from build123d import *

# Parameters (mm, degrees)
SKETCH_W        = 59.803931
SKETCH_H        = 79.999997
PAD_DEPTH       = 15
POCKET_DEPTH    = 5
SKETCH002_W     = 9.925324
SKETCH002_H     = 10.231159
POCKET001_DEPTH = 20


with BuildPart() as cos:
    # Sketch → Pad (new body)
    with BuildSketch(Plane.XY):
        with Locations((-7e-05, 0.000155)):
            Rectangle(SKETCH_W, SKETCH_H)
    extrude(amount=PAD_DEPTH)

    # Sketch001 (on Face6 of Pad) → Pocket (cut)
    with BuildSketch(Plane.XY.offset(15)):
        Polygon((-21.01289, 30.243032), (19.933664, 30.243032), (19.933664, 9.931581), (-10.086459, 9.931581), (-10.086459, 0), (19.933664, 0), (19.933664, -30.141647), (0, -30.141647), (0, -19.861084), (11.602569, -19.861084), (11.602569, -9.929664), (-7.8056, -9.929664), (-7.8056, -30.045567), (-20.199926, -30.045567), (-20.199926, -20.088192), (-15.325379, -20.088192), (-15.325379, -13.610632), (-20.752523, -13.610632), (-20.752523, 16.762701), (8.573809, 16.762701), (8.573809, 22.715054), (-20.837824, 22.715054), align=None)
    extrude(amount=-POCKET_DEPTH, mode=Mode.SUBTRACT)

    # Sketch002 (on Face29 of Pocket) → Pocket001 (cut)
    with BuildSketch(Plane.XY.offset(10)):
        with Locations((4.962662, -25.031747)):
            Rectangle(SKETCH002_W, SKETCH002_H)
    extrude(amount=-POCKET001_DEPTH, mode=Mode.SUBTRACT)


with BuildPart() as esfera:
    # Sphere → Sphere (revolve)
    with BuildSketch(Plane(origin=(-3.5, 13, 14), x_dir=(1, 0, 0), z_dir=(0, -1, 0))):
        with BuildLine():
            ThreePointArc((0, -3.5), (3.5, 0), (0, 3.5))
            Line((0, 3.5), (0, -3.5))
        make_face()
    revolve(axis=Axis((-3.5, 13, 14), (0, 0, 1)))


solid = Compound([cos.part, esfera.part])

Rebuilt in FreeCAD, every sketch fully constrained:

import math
import FreeCAD as App
import Part
import Sketcher


def add_polygon(sketch, points):
    """Adds a closed chain of lines whose ends are joined by coincident constraints."""
    first, n = sketch.GeometryCount, len(points)
    for a, b in zip(points, points[1:] + points[:1]):
        sketch.addGeometry(Part.LineSegment(App.Vector(*a, 0), App.Vector(*b, 0)), False)
    for i in range(n):
        sketch.addConstraint(Sketcher.Constraint("Coincident", first + i, 2, first + (i + 1) % n, 1))

doc = App.newDocument("Part")
body = doc.addObject("PartDesign::Body", "Body")

# Sketch on XY plane
sketch1 = doc.addObject("Sketcher::SketchObject", "Sketch")
body.addObject(sketch1)
sketch1.AttachmentSupport = (doc.XY_Plane, [""])
sketch1.MapMode = "FlatFace"
add_polygon(sketch1, [(-30, 40), (-30, -40), (30, -40), (30, 40)])  # lines 0-3
sketch1.addConstraint(Sketcher.Constraint("Vertical", 0))
sketch1.addConstraint(Sketcher.Constraint("Horizontal", 1))
sketch1.addConstraint(Sketcher.Constraint("Vertical", 2))
sketch1.addConstraint(Sketcher.Constraint("Horizontal", 3))
sketch1.addConstraint(Sketcher.Constraint("DistanceX", 1, 1, 1, 2, 59.803931))
sketch1.addConstraint(Sketcher.Constraint("DistanceY", 0, 2, 0, 1, 79.999997))
sketch1.addConstraint(Sketcher.Constraint("DistanceX", 0, 2, -1, 1, 29.902036))
sketch1.addConstraint(Sketcher.Constraint("DistanceY", 0, 2, -1, 1, 39.999843))
pad1 = doc.addObject("PartDesign::Pad", "Pad")
body.addObject(pad1)
pad1.Profile = sketch1
pad1.Length = 15

# Sketch on XY plane
sketch2 = doc.addObject("Sketcher::SketchObject", "Sketch001")
body.addObject(sketch2)
sketch2.AttachmentSupport = (doc.XY_Plane, [""])
sketch2.MapMode = "FlatFace"
sketch2.AttachmentOffset = App.Placement(App.Vector(0, 0, 15), App.Rotation())
add_polygon(sketch2, [(19.9, 30.2), (-21, 30.2), (-20.8, 22.7), (8.6, 22.7), (8.6, 16.8), (-20.8, 16.8), (-20.8, -13.6), (-15.3, -13.6), (-15.3, -20.1), (-20.2, -20.1), (-20.2, -30), (-7.8, -30), (-7.8, -9.9), (11.6, -9.9), (11.6, -19.9), (0, -19.9), (0, -30.1), (19.9, -30.1), (19.9, 0), (-10.1, 0), (-10.1, 9.9), (19.9, 9.9)])  # lines 0-21
sketch2.addConstraint(Sketcher.Constraint("Horizontal", 0))
sketch2.addConstraint(Sketcher.Constraint("Horizontal", 2))
sketch2.addConstraint(Sketcher.Constraint("Vertical", 3))
sketch2.addConstraint(Sketcher.Constraint("Horizontal", 4))
sketch2.addConstraint(Sketcher.Constraint("Vertical", 5))
sketch2.addConstraint(Sketcher.Constraint("Horizontal", 6))
sketch2.addConstraint(Sketcher.Constraint("Vertical", 7))
sketch2.addConstraint(Sketcher.Constraint("Horizontal", 8))
sketch2.addConstraint(Sketcher.Constraint("Vertical", 9))
sketch2.addConstraint(Sketcher.Constraint("Horizontal", 10))
sketch2.addConstraint(Sketcher.Constraint("Vertical", 11))
sketch2.addConstraint(Sketcher.Constraint("Horizontal", 12))
sketch2.addConstraint(Sketcher.Constraint("Vertical", 13))
sketch2.addConstraint(Sketcher.Constraint("Horizontal", 14))
sketch2.addConstraint(Sketcher.Constraint("Vertical", 15))
sketch2.addConstraint(Sketcher.Constraint("Horizontal", 16))
sketch2.addConstraint(Sketcher.Constraint("Vertical", 17))
sketch2.addConstraint(Sketcher.Constraint("Horizontal", 18))
sketch2.addConstraint(Sketcher.Constraint("Vertical", 19))
sketch2.addConstraint(Sketcher.Constraint("Horizontal", 20))
sketch2.addConstraint(Sketcher.Constraint("Vertical", 21))
sketch2.addConstraint(Sketcher.Constraint("PointOnObject", 14, 2, -2))
sketch2.addConstraint(Sketcher.Constraint("PointOnObject", 17, 2, -1))
sketch2.addConstraint(Sketcher.Constraint("Vertical", 17, 2, 20, 2))
sketch2.addConstraint(Sketcher.Constraint("DistanceX", 12, 1, 12, 2, 19.408169))
sketch2.addConstraint(Sketcher.Constraint("DistanceX", 14, 2, 14, 1, 11.602569))
sketch2.addConstraint(Sketcher.Constraint("DistanceY", 7, 2, 7, 1, 6.47756))
sketch2.addConstraint(Sketcher.Constraint("DistanceY", 13, 2, 13, 1, 9.93142))
sketch2.addConstraint(Sketcher.Constraint("DistanceY", 19, 1, 19, 2, 9.931581))
sketch2.addConstraint(Sketcher.Constraint("DistanceY", 21, 1, 21, 2, 20.311451))
sketch2.addConstraint(Sketcher.Constraint("DistanceY", -1, 1, 3, 2, 16.762701))
sketch2.addConstraint(Sketcher.Constraint("DistanceX", 0, 2, 2, 2, 29.586699))
sketch2.addConstraint(Sketcher.Constraint("DistanceX", 1, 2, 4, 2, 0.085301))
sketch2.addConstraint(Sketcher.Constraint("DistanceX", 0, 2, 0, 1, 40.946554))
sketch2.addConstraint(Sketcher.Constraint("DistanceX", 2, 1, 2, 2, 29.411633))
sketch2.addConstraint(Sketcher.Constraint("DistanceX", 6, 1, 6, 2, 5.427144))
sketch2.addConstraint(Sketcher.Constraint("DistanceX", 8, 2, 8, 1, 4.874547))
sketch2.addConstraint(Sketcher.Constraint("DistanceX", 10, 1, 10, 2, 12.394326))
sketch2.addConstraint(Sketcher.Constraint("DistanceX", 18, 2, 18, 1, 30.020123))
sketch2.addConstraint(Sketcher.Constraint("DistanceY", 3, 2, 3, 1, 5.952353))
sketch2.addConstraint(Sketcher.Constraint("DistanceY", 5, 2, 5, 1, 30.373333))
sketch2.addConstraint(Sketcher.Constraint("DistanceY", 9, 2, 9, 1, 9.957375))
sketch2.addConstraint(Sketcher.Constraint("DistanceY", 11, 1, 11, 2, 20.115903))
sketch2.addConstraint(Sketcher.Constraint("DistanceY", 15, 2, 15, 1, 10.280563))
pocket1 = doc.addObject("PartDesign::Pocket", "Pocket")
body.addObject(pocket1)
pocket1.Profile = sketch2
pocket1.Length = 5

# Sketch on XY plane
sketch3 = doc.addObject("Sketcher::SketchObject", "Sketch002")
body.addObject(sketch3)
sketch3.AttachmentSupport = (doc.XY_Plane, [""])
sketch3.MapMode = "FlatFace"
sketch3.AttachmentOffset = App.Placement(App.Vector(0, 0, 10), App.Rotation())
add_polygon(sketch3, [(0, -20), (0, -30), (10, -30), (10, -20)])  # lines 0-3
sketch3.addConstraint(Sketcher.Constraint("Vertical", 0))
sketch3.addConstraint(Sketcher.Constraint("Horizontal", 1))
sketch3.addConstraint(Sketcher.Constraint("Vertical", 2))
sketch3.addConstraint(Sketcher.Constraint("Horizontal", 3))
sketch3.addConstraint(Sketcher.Constraint("PointOnObject", 0, 2, -2))
sketch3.addConstraint(Sketcher.Constraint("DistanceY", 0, 2, 0, 1, 10.231159))
sketch3.addConstraint(Sketcher.Constraint("DistanceX", 1, 1, 1, 2, 9.925324))
sketch3.addConstraint(Sketcher.Constraint("DistanceY", 0, 2, -1, 1, 30.147326))
pocket2 = doc.addObject("PartDesign::Pocket", "Pocket001")
body.addObject(pocket2)
pocket2.Profile = sketch3
pocket2.Length = 20
body2 = doc.addObject("PartDesign::Body", "Body001")

# Sketch on XZ plane
sketch4 = doc.addObject("Sketcher::SketchObject", "Sketch003")
body2.addObject(sketch4)
sketch4.AttachmentSupport = (doc.getObject("XZ_Plane001"), [""])
sketch4.MapMode = "FlatFace"
sketch4.AttachmentOffset = App.Placement(App.Vector(0, 0, -13), App.Rotation())
sketch4.addGeometry(Part.ArcOfCircle(Part.Circle(App.Vector(-3.5, 14, 0), App.Vector(0, 0, 1), 3.5), math.radians(-90), math.radians(90)), False)
sketch4.addGeometry(Part.LineSegment(App.Vector(-3.5, 17.5, 0), App.Vector(-3.5, 10.5, 0)), False)
sketch4.addGeometry(Part.LineSegment(App.Vector(-3.5, 10.5, 0), App.Vector(-3.5, 17.5, 0)), True)  # axis
sketch4.addConstraint(Sketcher.Constraint("Coincident", 0, 1, 1, 2))
sketch4.addConstraint(Sketcher.Constraint("Coincident", 1, 1, 0, 2))
sketch4.addConstraint(Sketcher.Constraint("Vertical", 1))
sketch4.addConstraint(Sketcher.Constraint("Vertical", 2))
sketch4.addConstraint(Sketcher.Constraint("Coincident", 2, 1, 0, 1))
sketch4.addConstraint(Sketcher.Constraint("Equal", 1, 2))
sketch4.addConstraint(Sketcher.Constraint("Radius", 0, 3.5))
sketch4.addConstraint(Sketcher.Constraint("DistanceY", -1, 1, 0, 3, 14.0))
sketch4.addConstraint(Sketcher.Constraint("DistanceX", 0, 3, -1, 1, 3.5))
sketch4.addConstraint(Sketcher.Constraint("DistanceX", 0, 1, -1, 1, 3.5))
revolution = doc.addObject("PartDesign::Revolution", "Revolution")
body2.addObject(revolution)
revolution.Profile = sketch4
revolution.ReferenceAxis = (sketch4, ["Axis0"])
revolution.Angle = 360

doc.recompute()
